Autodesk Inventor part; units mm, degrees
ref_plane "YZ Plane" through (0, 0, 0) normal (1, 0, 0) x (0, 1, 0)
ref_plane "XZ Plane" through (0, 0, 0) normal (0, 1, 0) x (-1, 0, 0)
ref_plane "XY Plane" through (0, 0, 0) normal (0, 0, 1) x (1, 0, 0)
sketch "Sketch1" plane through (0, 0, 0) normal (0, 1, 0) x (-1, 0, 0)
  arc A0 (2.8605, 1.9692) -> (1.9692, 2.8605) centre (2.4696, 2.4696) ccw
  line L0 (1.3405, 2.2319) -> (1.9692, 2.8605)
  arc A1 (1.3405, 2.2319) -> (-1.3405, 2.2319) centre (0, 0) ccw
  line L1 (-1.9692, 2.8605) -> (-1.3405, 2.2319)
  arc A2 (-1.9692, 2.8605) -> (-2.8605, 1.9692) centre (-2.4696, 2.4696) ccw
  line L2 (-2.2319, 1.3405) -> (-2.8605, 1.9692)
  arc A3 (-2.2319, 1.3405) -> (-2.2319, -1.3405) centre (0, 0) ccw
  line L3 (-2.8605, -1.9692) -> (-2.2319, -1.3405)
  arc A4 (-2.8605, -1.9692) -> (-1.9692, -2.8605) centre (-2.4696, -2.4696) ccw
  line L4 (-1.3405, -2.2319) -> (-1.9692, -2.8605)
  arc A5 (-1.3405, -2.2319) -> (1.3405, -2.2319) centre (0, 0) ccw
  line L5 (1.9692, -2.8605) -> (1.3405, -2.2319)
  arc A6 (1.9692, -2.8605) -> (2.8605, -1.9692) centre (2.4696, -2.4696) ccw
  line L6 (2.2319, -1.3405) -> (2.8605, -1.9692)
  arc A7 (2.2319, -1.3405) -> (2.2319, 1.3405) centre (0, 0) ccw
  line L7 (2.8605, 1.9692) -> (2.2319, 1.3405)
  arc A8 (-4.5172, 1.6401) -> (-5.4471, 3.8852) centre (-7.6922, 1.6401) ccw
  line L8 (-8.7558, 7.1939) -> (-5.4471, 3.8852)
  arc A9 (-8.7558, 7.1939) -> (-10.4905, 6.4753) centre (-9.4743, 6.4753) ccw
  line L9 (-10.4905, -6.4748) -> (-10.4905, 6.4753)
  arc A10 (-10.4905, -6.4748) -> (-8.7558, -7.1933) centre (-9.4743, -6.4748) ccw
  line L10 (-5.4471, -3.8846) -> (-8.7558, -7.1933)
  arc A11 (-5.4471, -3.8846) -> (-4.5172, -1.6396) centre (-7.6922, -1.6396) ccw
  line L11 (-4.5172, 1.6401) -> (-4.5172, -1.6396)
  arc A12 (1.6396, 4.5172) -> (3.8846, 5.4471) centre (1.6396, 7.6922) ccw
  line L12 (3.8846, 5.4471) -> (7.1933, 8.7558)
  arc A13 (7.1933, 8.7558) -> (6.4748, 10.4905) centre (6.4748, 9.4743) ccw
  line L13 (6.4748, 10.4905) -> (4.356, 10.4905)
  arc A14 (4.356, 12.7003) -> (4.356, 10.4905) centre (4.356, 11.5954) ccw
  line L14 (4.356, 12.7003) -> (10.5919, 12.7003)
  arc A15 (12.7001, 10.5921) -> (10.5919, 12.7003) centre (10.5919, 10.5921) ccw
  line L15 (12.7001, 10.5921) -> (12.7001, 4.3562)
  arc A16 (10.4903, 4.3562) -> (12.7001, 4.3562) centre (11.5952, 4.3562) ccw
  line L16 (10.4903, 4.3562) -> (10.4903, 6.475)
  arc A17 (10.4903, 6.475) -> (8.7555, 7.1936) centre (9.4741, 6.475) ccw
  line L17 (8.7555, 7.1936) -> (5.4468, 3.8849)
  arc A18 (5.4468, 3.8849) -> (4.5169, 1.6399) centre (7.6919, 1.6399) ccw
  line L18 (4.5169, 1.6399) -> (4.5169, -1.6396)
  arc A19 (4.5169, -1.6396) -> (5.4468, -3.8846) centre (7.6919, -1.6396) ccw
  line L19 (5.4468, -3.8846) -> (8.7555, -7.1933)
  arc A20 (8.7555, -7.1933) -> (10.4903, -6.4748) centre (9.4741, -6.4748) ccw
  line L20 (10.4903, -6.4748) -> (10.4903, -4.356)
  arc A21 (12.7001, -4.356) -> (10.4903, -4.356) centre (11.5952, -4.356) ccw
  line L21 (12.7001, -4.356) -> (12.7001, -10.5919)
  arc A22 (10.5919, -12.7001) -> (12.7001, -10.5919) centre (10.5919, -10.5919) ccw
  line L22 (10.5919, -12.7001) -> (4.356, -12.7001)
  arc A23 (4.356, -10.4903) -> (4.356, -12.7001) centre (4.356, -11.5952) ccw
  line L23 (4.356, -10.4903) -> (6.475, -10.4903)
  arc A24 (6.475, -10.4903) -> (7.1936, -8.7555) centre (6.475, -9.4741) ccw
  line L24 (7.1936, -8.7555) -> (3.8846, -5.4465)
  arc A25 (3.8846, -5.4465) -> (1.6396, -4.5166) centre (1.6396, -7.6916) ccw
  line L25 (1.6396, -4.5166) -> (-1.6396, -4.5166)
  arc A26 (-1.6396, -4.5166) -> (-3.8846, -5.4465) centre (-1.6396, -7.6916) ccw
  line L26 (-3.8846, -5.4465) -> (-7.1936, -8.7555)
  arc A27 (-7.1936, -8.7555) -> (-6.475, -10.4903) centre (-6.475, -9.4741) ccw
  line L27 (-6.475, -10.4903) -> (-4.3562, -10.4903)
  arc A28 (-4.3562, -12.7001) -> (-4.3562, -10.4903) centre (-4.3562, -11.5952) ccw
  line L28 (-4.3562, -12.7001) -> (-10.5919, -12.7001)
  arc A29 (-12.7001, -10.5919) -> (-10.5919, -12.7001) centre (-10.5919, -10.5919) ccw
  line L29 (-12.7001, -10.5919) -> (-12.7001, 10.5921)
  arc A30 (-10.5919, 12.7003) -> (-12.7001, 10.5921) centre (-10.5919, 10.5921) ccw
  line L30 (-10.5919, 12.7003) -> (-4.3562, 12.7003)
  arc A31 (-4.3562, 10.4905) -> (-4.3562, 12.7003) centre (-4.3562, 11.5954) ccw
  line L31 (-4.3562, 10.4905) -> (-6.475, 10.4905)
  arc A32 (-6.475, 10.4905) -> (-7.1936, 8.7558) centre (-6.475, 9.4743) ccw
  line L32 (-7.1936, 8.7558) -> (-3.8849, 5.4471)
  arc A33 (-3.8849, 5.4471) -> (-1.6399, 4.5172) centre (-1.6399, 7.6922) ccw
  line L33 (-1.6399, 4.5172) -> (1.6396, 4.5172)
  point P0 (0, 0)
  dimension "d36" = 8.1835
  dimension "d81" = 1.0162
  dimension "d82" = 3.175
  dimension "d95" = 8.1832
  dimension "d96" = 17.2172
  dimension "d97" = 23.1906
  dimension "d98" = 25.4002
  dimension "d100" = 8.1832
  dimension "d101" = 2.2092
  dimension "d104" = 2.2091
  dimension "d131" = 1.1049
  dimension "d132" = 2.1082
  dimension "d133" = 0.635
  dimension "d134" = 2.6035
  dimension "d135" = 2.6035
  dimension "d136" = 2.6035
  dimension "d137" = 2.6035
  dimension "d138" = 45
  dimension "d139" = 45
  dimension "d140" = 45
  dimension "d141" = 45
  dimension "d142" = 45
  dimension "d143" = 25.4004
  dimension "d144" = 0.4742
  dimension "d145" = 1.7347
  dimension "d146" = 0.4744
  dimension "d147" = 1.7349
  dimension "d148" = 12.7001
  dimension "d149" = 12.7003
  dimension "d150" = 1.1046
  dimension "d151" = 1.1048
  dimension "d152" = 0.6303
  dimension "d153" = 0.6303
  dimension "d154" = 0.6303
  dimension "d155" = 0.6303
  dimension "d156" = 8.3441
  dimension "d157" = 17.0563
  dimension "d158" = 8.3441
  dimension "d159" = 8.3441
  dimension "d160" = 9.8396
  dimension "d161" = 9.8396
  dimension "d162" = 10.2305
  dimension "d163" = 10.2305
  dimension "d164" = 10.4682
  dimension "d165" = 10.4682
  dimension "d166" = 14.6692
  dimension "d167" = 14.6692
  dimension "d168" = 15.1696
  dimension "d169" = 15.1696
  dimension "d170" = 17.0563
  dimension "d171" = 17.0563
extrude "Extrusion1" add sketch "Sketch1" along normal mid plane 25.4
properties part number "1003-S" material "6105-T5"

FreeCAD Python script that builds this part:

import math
import FreeCAD as App
import Part
import Sketcher
Q = App.Units.Quantity

doc = App.newDocument("Part")
body = doc.addObject("PartDesign::Body", "Body")

# Sketch on XZ plane
sketch1 = body.newObject("Sketcher::SketchObject", "Sketch")
sketch1.AttachmentSupport = (doc.getObject("XZ_Plane"), [""])
sketch1.MapMode = "FlatFace"
sketch1.addGeometry(Part.ArcOfCircle(Part.Circle(App.Vector(-1.6, 7.7, 0), App.Vector(0, 0, 1), 3.2), math.radians(-135), math.radians(-90)), False)
sketch1.addGeometry(Part.LineSegment(App.Vector(-1.6, 4.5, 0), App.Vector(1.6, 4.5, 0)), False)
sketch1.addGeometry(Part.ArcOfCircle(Part.Circle(App.Vector(1.6, 7.7, 0), App.Vector(0, 0, 1), 3.2), math.radians(-90), math.radians(-45)), False)
sketch1.addGeometry(Part.LineSegment(App.Vector(3.9, 5.4, 0), App.Vector(7.2, 8.8, 0)), False)
sketch1.addGeometry(Part.ArcOfCircle(Part.Circle(App.Vector(6.5, 9.5, 0), App.Vector(0, 0, 1), 1), math.radians(-45), math.radians(90)), False)
sketch1.addGeometry(Part.LineSegment(App.Vector(6.5, 10.5, 0), App.Vector(4.4, 10.5, 0)), False)
sketch1.addGeometry(Part.ArcOfCircle(Part.Circle(App.Vector(4.4, 11.6, 0), App.Vector(0, 0, 1), 1.1), math.radians(90), math.radians(270)), False)
sketch1.addGeometry(Part.LineSegment(App.Vector(4.4, 12.7, 0), App.Vector(10.6, 12.7, 0)), False)
sketch1.addGeometry(Part.ArcOfCircle(Part.Circle(App.Vector(10.6, 10.6, 0), App.Vector(0, 0, 1), 2.1), math.radians(0), math.radians(90)), False)
sketch1.addGeometry(Part.LineSegment(App.Vector(12.7, 10.6, 0), App.Vector(12.7, -10.6, 0)), False)
sketch1.addGeometry(Part.ArcOfCircle(Part.Circle(App.Vector(10.6, -10.6, 0), App.Vector(0, 0, 1), 2.1), math.radians(-90), math.radians(0)), False)
sketch1.addGeometry(Part.LineSegment(App.Vector(10.6, -12.7, 0), App.Vector(4.4, -12.7, 0)), False)
sketch1.addGeometry(Part.ArcOfCircle(Part.Circle(App.Vector(4.4, -11.6, 0), App.Vector(0, 0, 1), 1.1), math.radians(90), math.radians(270)), False)
sketch1.addGeometry(Part.LineSegment(App.Vector(4.4, -10.5, 0), App.Vector(6.5, -10.5, 0)), False)
sketch1.addGeometry(Part.ArcOfCircle(Part.Circle(App.Vector(6.5, -9.5, 0), App.Vector(0, 0, 1), 1), math.radians(-90), math.radians(45)), False)
sketch1.addGeometry(Part.LineSegment(App.Vector(7.2, -8.8, 0), App.Vector(3.9, -5.4, 0)), False)
sketch1.addGeometry(Part.ArcOfCircle(Part.Circle(App.Vector(1.6, -7.7, 0), App.Vector(0, 0, 1), 3.2), math.radians(45), math.radians(90)), False)
sketch1.addGeometry(Part.LineSegment(App.Vector(1.6, -4.5, 0), App.Vector(-1.6, -4.5, 0)), False)
sketch1.addGeometry(Part.ArcOfCircle(Part.Circle(App.Vector(-1.6, -7.7, 0), App.Vector(0, 0, 1), 3.2), math.radians(90), math.radians(135)), False)
sketch1.addGeometry(Part.LineSegment(App.Vector(-3.9, -5.4, 0), App.Vector(-7.2, -8.8, 0)), False)
sketch1.addGeometry(Part.ArcOfCircle(Part.Circle(App.Vector(-6.5, -9.5, 0), App.Vector(0, 0, 1), 1), math.radians(135), math.radians(270)), False)
sketch1.addGeometry(Part.LineSegment(App.Vector(-6.5, -10.5, 0), App.Vector(-4.4, -10.5, 0)), False)
sketch1.addGeometry(Part.ArcOfCircle(Part.Circle(App.Vector(-4.4, -11.6, 0), App.Vector(0, 0, 1), 1.1), math.radians(-90), math.radians(90)), False)
sketch1.addGeometry(Part.LineSegment(App.Vector(-4.4, -12.7, 0), App.Vector(-10.6, -12.7, 0)), False)
sketch1.addGeometry(Part.ArcOfCircle(Part.Circle(App.Vector(-10.6, -10.6, 0), App.Vector(0, 0, 1), 2.1), math.radians(180), math.radians(270)), False)
sketch1.addGeometry(Part.LineSegment(App.Vector(-12.7, -10.6, 0), App.Vector(-12.7, -4.4, 0)), False)
sketch1.addGeometry(Part.ArcOfCircle(Part.Circle(App.Vector(-11.6, -4.4, 0), App.Vector(0, 0, 1), 1.1), math.radians(0), math.radians(180)), False)
sketch1.addGeometry(Part.LineSegment(App.Vector(-10.5, -4.4, 0), App.Vector(-10.5, -6.5, 0)), False)
sketch1.addGeometry(Part.ArcOfCircle(Part.Circle(App.Vector(-9.5, -6.5, 0), App.Vector(0, 0, 1), 1), math.radians(180), math.radians(315)), False)
sketch1.addGeometry(Part.LineSegment(App.Vector(-8.8, -7.2, 0), App.Vector(-5.4, -3.9, 0)), False)
sketch1.addGeometry(Part.ArcOfCircle(Part.Circle(App.Vector(-7.7, -1.6, 0), App.Vector(0, 0, 1), 3.2), math.radians(-45), math.radians(0)), False)
sketch1.addGeometry(Part.LineSegment(App.Vector(-4.5, -1.6, 0), App.Vector(-4.5, 1.6, 0)), False)
sketch1.addGeometry(Part.ArcOfCircle(Part.Circle(App.Vector(-7.7, 1.6, 0), App.Vector(0, 0, 1), 3.2), math.radians(0), math.radians(45)), False)
sketch1.addGeometry(Part.LineSegment(App.Vector(-5.4, 3.9, 0), App.Vector(-8.8, 7.2, 0)), False)
sketch1.addGeometry(Part.ArcOfCircle(Part.Circle(App.Vector(-9.5, 6.5, 0), App.Vector(0, 0, 1), 1), math.radians(45), math.radians(180)), False)
sketch1.addGeometry(Part.LineSegment(App.Vector(-10.5, 6.5, 0), App.Vector(-10.5, 4.4, 0)), False)
sketch1.addGeometry(Part.ArcOfCircle(Part.Circle(App.Vector(-11.6, 4.4, 0), App.Vector(0, 0, 1), 1.1), math.radians(180), math.radians(360)), False)
sketch1.addGeometry(Part.LineSegment(App.Vector(-12.7, 4.4, 0), App.Vector(-12.7, 10.6, 0)), False)
sketch1.addGeometry(Part.ArcOfCircle(Part.Circle(App.Vector(-10.6, 10.6, 0), App.Vector(0, 0, 1), 2.1), math.radians(90), math.radians(180)), False)
sketch1.addGeometry(Part.LineSegment(App.Vector(-10.6, 12.7, 0), App.Vector(-4.4, 12.7, 0)), False)
sketch1.addGeometry(Part.ArcOfCircle(Part.Circle(App.Vector(-4.4, 11.6, 0), App.Vector(0, 0, 1), 1.1), math.radians(-90), math.radians(90)), False)
sketch1.addGeometry(Part.LineSegment(App.Vector(-4.4, 10.5, 0), App.Vector(-6.5, 10.5, 0)), False)
sketch1.addGeometry(Part.ArcOfCircle(Part.Circle(App.Vector(-6.5, 9.5, 0), App.Vector(0, 0, 1), 1), math.radians(90), math.radians(225)), False)
sketch1.addGeometry(Part.LineSegment(App.Vector(-7.2, 8.8, 0), App.Vector(-3.9, 5.4, 0)), False)
sketch1.addGeometry(Part.ArcOfCircle(Part.Circle(App.Vector(-2.5, 2.5, 0), App.Vector(0, 0, 1), 0.6), math.radians(38), math.radians(232)), False)
sketch1.addGeometry(Part.LineSegment(App.Vector(-2.9, 2, 0), App.Vector(-2.2, 1.3, 0)), False)
sketch1.addGeometry(Part.ArcOfCircle(Part.Circle(App.Vector(0, 0, 0), App.Vector(0, 0, 1), 2.6), math.radians(149), math.radians(211)), False)
sketch1.addGeometry(Part.LineSegment(App.Vector(-2.2, -1.3, 0), App.Vector(-2.9, -2, 0)), False)
sketch1.addGeometry(Part.ArcOfCircle(Part.Circle(App.Vector(-2.5, -2.5, 0), App.Vector(0, 0, 1), 0.6), math.radians(128), math.radians(322)), False)
sketch1.addGeometry(Part.LineSegment(App.Vector(-2, -2.9, 0), App.Vector(-1.3, -2.2, 0)), False)
sketch1.addGeometry(Part.ArcOfCircle(Part.Circle(App.Vector(0, 0, 0), App.Vector(0, 0, 1), 2.6), math.radians(-121), math.radians(-59)), False)
sketch1.addGeometry(Part.LineSegment(App.Vector(1.3, -2.2, 0), App.Vector(2, -2.9, 0)), False)
sketch1.addGeometry(Part.ArcOfCircle(Part.Circle(App.Vector(2.5, -2.5, 0), App.Vector(0, 0, 1), 0.6), math.radians(-142), math.radians(52)), False)
sketch1.addGeometry(Part.LineSegment(App.Vector(2.9, -2, 0), App.Vector(2.2, -1.3, 0)), False)
sketch1.addGeometry(Part.ArcOfCircle(Part.Circle(App.Vector(0, 0, 0), App.Vector(0, 0, 1), 2.6), math.radians(-31), math.radians(31)), False)
sketch1.addGeometry(Part.LineSegment(App.Vector(2.2, 1.3, 0), App.Vector(2.9, 2, 0)), False)
sketch1.addGeometry(Part.ArcOfCircle(Part.Circle(App.Vector(2.5, 2.5, 0), App.Vector(0, 0, 1), 0.6), math.radians(-52), math.radians(142)), False)
sketch1.addGeometry(Part.LineSegment(App.Vector(2, 2.9, 0), App.Vector(1.3, 2.2, 0)), False)
sketch1.addGeometry(Part.ArcOfCircle(Part.Circle(App.Vector(0, 0, 0), App.Vector(0, 0, 1), 2.6), math.radians(59), math.radians(121)), False)
sketch1.addGeometry(Part.LineSegment(App.Vector(-1.3, 2.2, 0), App.Vector(-2, 2.9, 0)), False)
sketch1.addGeometry(Part.ArcOfCircle(Part.Circle(App.Vector(7.7, 1.6, 0), App.Vector(0, 0, 1), 3.2), math.radians(135), math.radians(180)), False)
sketch1.addGeometry(Part.LineSegment(App.Vector(4.5, 1.6, 0), App.Vector(4.5, -1.6, 0)), False)
sketch1.addGeometry(Part.ArcOfCircle(Part.Circle(App.Vector(7.7, -1.6, 0), App.Vector(0, 0, 1), 3.2), math.radians(180), math.radians(225)), False)
sketch1.addGeometry(Part.LineSegment(App.Vector(5.4, -3.9, 0), App.Vector(8.8, -7.2, 0)), False)
sketch1.addGeometry(Part.ArcOfCircle(Part.Circle(App.Vector(9.5, -6.5, 0), App.Vector(0, 0, 1), 1), math.radians(-135), math.radians(0)), False)
sketch1.addGeometry(Part.LineSegment(App.Vector(10.5, -6.5, 0), App.Vector(10.5, 6.5, 0)), False)
sketch1.addGeometry(Part.ArcOfCircle(Part.Circle(App.Vector(9.5, 6.5, 0), App.Vector(0, 0, 1), 1), math.radians(0), math.radians(135)), False)
sketch1.addGeometry(Part.LineSegment(App.Vector(8.8, 7.2, 0), App.Vector(5.4, 3.9, 0)), False)
sketch1.addConstraint(Sketcher.Constraint("Tangent", 0, 2, 1, 1))
sketch1.addConstraint(Sketcher.Constraint("Tangent", 1, 2, 2, 1))
sketch1.addConstraint(Sketcher.Constraint("Tangent", 2, 2, 3, 1))
sketch1.addConstraint(Sketcher.Constraint("Tangent", 3, 2, 4, 1))
sketch1.addConstraint(Sketcher.Constraint("Tangent", 4, 2, 5, 1))
sketch1.addConstraint(Sketcher.Constraint("Tangent", 5, 2, 6, 2))
sketch1.addConstraint(Sketcher.Constraint("Tangent", 6, 1, 7, 1))
sketch1.addConstraint(Sketcher.Constraint("Tangent", 7, 2, 8, 2))
sketch1.addConstraint(Sketcher.Constraint("Tangent", 8, 1, 9, 1))
sketch1.addConstraint(Sketcher.Constraint("Tangent", 9, 2, 10, 2))
sketch1.addConstraint(Sketcher.Constraint("Tangent", 10, 1, 11, 1))
sketch1.addConstraint(Sketcher.Constraint("Tangent", 11, 2, 12, 2))
sketch1.addConstraint(Sketcher.Constraint("Tangent", 12, 1, 13, 1))
sketch1.addConstraint(Sketcher.Constraint("Tangent", 13, 2, 14, 1))
sketch1.addConstraint(Sketcher.Constraint("Tangent", 14, 2, 15, 1))
sketch1.addConstraint(Sketcher.Constraint("Tangent", 15, 2, 16, 1))
sketch1.addConstraint(Sketcher.Constraint("Tangent", 16, 2, 17, 1))
sketch1.addConstraint(Sketcher.Constraint("Tangent", 17, 2, 18, 1))
sketch1.addConstraint(Sketcher.Constraint("Tangent", 18, 2, 19, 1))
sketch1.addConstraint(Sketcher.Constraint("Tangent", 19, 2, 20, 1))
sketch1.addConstraint(Sketcher.Constraint("Tangent", 20, 2, 21, 1))
sketch1.addConstraint(Sketcher.Constraint("Tangent", 21, 2, 22, 2))
sketch1.addConstraint(Sketcher.Constraint("Tangent", 22, 1, 23, 1))
sketch1.addConstraint(Sketcher.Constraint("Tangent", 23, 2, 24, 2))
sketch1.addConstraint(Sketcher.Constraint("Tangent", 24, 1, 25, 1))
sketch1.addConstraint(Sketcher.Constraint("Tangent", 25, 2, 26, 2))
sketch1.addConstraint(Sketcher.Constraint("Tangent", 26, 1, 27, 1))
sketch1.addConstraint(Sketcher.Constraint("Tangent", 27, 2, 28, 1))
sketch1.addConstraint(Sketcher.Constraint("Tangent", 28, 2, 29, 1))
sketch1.addConstraint(Sketcher.Constraint("Tangent", 29, 2, 30, 1))
sketch1.addConstraint(Sketcher.Constraint("Tangent", 30, 2, 31, 1))
sketch1.addConstraint(Sketcher.Constraint("Tangent", 31, 2, 32, 1))
sketch1.addConstraint(Sketcher.Constraint("Tangent", 32, 2, 33, 1))
sketch1.addConstraint(Sketcher.Constraint("Tangent", 33, 2, 34, 1))
sketch1.addConstraint(Sketcher.Constraint("Tangent", 34, 2, 35, 1))
sketch1.addConstraint(Sketcher.Constraint("Tangent", 35, 2, 36, 2))
sketch1.addConstraint(Sketcher.Constraint("Tangent", 36, 1, 37, 1))
sketch1.addConstraint(Sketcher.Constraint("Tangent", 37, 2, 38, 2))
sketch1.addConstraint(Sketcher.Constraint("Tangent", 38, 1, 39, 1))
sketch1.addConstraint(Sketcher.Constraint("Tangent", 39, 2, 40, 2))
sketch1.addConstraint(Sketcher.Constraint("Tangent", 40, 1, 41, 1))
sketch1.addConstraint(Sketcher.Constraint("Tangent", 41, 2, 42, 1))
sketch1.addConstraint(Sketcher.Constraint("Tangent", 42, 2, 43, 1))
sketch1.addConstraint(Sketcher.Constraint("Tangent", 43, 2, 0, 1))
sketch1.addConstraint(Sketcher.Constraint("Coincident", 44, 2, 45, 1))
sketch1.addConstraint(Sketcher.Constraint("Coincident", 45, 2, 46, 1))
sketch1.addConstraint(Sketcher.Constraint("Coincident", 46, 2, 47, 1))
sketch1.addConstraint(Sketcher.Constraint("Coincident", 47, 2, 48, 1))
sketch1.addConstraint(Sketcher.Constraint("Coincident", 48, 2, 49, 1))
sketch1.addConstraint(Sketcher.Constraint("Coincident", 49, 2, 50, 1))
sketch1.addConstraint(Sketcher.Constraint("Coincident", 50, 2, 51, 1))
sketch1.addConstraint(Sketcher.Constraint("Coincident", 51, 2, 52, 1))
sketch1.addConstraint(Sketcher.Constraint("Coincident", 52, 2, 53, 1))
sketch1.addConstraint(Sketcher.Constraint("Coincident", 53, 2, 54, 1))
sketch1.addConstraint(Sketcher.Constraint("Coincident", 54, 2, 55, 1))
sketch1.addConstraint(Sketcher.Constraint("Coincident", 55, 2, 56, 1))
sketch1.addConstraint(Sketcher.Constraint("Coincident", 56, 2, 57, 1))
sketch1.addConstraint(Sketcher.Constraint("Coincident", 57, 2, 58, 1))
sketch1.addConstraint(Sketcher.Constraint("Coincident", 58, 2, 59, 1))
sketch1.addConstraint(Sketcher.Constraint("Coincident", 59, 2, 44, 1))
sketch1.addConstraint(Sketcher.Constraint("Tangent", 60, 2, 61, 1))
sketch1.addConstraint(Sketcher.Constraint("Tangent", 61, 2, 62, 1))
sketch1.addConstraint(Sketcher.Constraint("Tangent", 62, 2, 63, 1))
sketch1.addConstraint(Sketcher.Constraint("Tangent", 63, 2, 64, 1))
sketch1.addConstraint(Sketcher.Constraint("Tangent", 64, 2, 65, 1))
sketch1.addConstraint(Sketcher.Constraint("Tangent", 65, 2, 66, 1))
sketch1.addConstraint(Sketcher.Constraint("Tangent", 66, 2, 67, 1))
sketch1.addConstraint(Sketcher.Constraint("Tangent", 67, 2, 60, 1))
sketch1.addConstraint(Sketcher.Constraint("Horizontal", 1))
sketch1.addConstraint(Sketcher.Constraint("Horizontal", 5))
sketch1.addConstraint(Sketcher.Constraint("Horizontal", 7))
sketch1.addConstraint(Sketcher.Constraint("Vertical", 9))
sketch1.addConstraint(Sketcher.Constraint("Horizontal", 11))
sketch1.addConstraint(Sketcher.Constraint("Horizontal", 13))
sketch1.addConstraint(Sketcher.Constraint("Horizontal", 17))
sketch1.addConstraint(Sketcher.Constraint("Horizontal", 21))
sketch1.addConstraint(Sketcher.Constraint("Horizontal", 23))
sketch1.addConstraint(Sketcher.Constraint("Vertical", 25))
sketch1.addConstraint(Sketcher.Constraint("Vertical", 27))
sketch1.addConstraint(Sketcher.Constraint("Vertical", 31))
sketch1.addConstraint(Sketcher.Constraint("Vertical", 35))
sketch1.addConstraint(Sketcher.Constraint("Vertical", 37))
sketch1.addConstraint(Sketcher.Constraint("Horizontal", 39))
sketch1.addConstraint(Sketcher.Constraint("Horizontal", 41))
sketch1.addConstraint(Sketcher.Constraint("Vertical", 61))
sketch1.addConstraint(Sketcher.Constraint("Vertical", 65))
sketch1.addConstraint(Sketcher.Constraint("Coincident", 46, 3, -1, 1))
sketch1.addConstraint(Sketcher.Constraint("Coincident", 50, 3, -1, 1))
sketch1.addConstraint(Sketcher.Constraint("Coincident", 54, 3, -1, 1))
sketch1.addConstraint(Sketcher.Constraint("Coincident", 58, 3, -1, 1))
sketch1.addConstraint(Sketcher.Constraint("Equal", 0, 2))
sketch1.addConstraint(Sketcher.Constraint("Equal", 8, 10))
sketch1.addConstraint(Sketcher.Constraint("Equal", 6, 12))
sketch1.addConstraint(Sketcher.Constraint("Equal", 4, 14))
sketch1.addConstraint(Sketcher.Constraint("Equal", 2, 16))
sketch1.addConstraint(Sketcher.Constraint("Equal", 16, 18))
sketch1.addConstraint(Sketcher.Constraint("Equal", 14, 20))
sketch1.addConstraint(Sketcher.Constraint("Equal", 12, 22))
sketch1.addConstraint(Sketcher.Constraint("Equal", 10, 24))
sketch1.addConstraint(Sketcher.Constraint("Equal", 22, 26))
sketch1.addConstraint(Sketcher.Constraint("Equal", 20, 28))
sketch1.addConstraint(Sketcher.Constraint("Equal", 18, 30))
sketch1.addConstraint(Sketcher.Constraint("Equal", 30, 32))
sketch1.addConstraint(Sketcher.Constraint("Equal", 28, 34))
sketch1.addConstraint(Sketcher.Constraint("Equal", 26, 36))
sketch1.addConstraint(Sketcher.Constraint("Equal", 24, 38))
sketch1.addConstraint(Sketcher.Constraint("Equal", 36, 40))
sketch1.addConstraint(Sketcher.Constraint("Equal", 34, 42))
sketch1.addConstraint(Sketcher.Constraint("Equal", 44, 48))
sketch1.addConstraint(Sketcher.Constraint("Equal", 46, 50))
sketch1.addConstraint(Sketcher.Constraint("Equal", 48, 52))
sketch1.addConstraint(Sketcher.Constraint("Equal", 50, 54))
sketch1.addConstraint(Sketcher.Constraint("Equal", 52, 56))
sketch1.addConstraint(Sketcher.Constraint("Equal", 54, 58))
sketch1.addConstraint(Sketcher.Constraint("Equal", 32, 60))
sketch1.addConstraint(Sketcher.Constraint("Equal", 60, 62))
sketch1.addConstraint(Sketcher.Constraint("Equal", 42, 64))
sketch1.addConstraint(Sketcher.Constraint("Equal", 64, 66))
sketch1.addConstraint(Sketcher.Constraint("Symmetric", 4, 3, 20, 3, -1, 1))
sketch1.addConstraint(Sketcher.Constraint("Symmetric", 10, 3, 38, 3, -1, 1))
sketch1.addConstraint(Sketcher.Constraint("Symmetric", 44, 3, 52, 3, -1, 1))
sketch1.addConstraint(Sketcher.Constraint("Symmetric", 48, 3, 56, 3, -1, 1))
sketch1.addConstraint(Sketcher.Constraint("Symmetric", 34, 3, 64, 3, -1, 1))
sketch1.addConstraint(Sketcher.Constraint("Symmetric", 14, 3, 20, 3, -2))
sketch1.addConstraint(Sketcher.Constraint("Symmetric", 48, 3, 52, 3, -2))
sketch1.addConstraint(Sketcher.Constraint("Symmetric", 32, 3, 60, 3, -2))
sketch1.addConstraint(Sketcher.Constraint("Symmetric", 28, 3, 64, 3, -2))
sketch1.addConstraint(Sketcher.Constraint("Symmetric", 3, 2, 42, 2, -2))
sketch1.addConstraint(Sketcher.Constraint("Perpendicular", 3, 15))
sketch1.addConstraint(Sketcher.Constraint("Perpendicular", 15, 19))
sketch1.addConstraint(Sketcher.Constraint("Parallel", 19, 29))
sketch1.addConstraint(Sketcher.Constraint("Perpendicular", 29, 33))
sketch1.addConstraint(Sketcher.Constraint("Parallel", 33, 43))
sketch1.addConstraint(Sketcher.Constraint("Parallel", 43, 45))
sketch1.addConstraint(Sketcher.Constraint("Perpendicular", 45, 47))
sketch1.addConstraint(Sketcher.Constraint("Parallel", 47, 49))
sketch1.addConstraint(Sketcher.Constraint("Perpendicular", 49, 51))
sketch1.addConstraint(Sketcher.Constraint("Parallel", 51, 53))
sketch1.addConstraint(Sketcher.Constraint("Perpendicular", 53, 55))
sketch1.addConstraint(Sketcher.Constraint("Parallel", 55, 57))
sketch1.addConstraint(Sketcher.Constraint("Perpendicular", 57, 59))
sketch1.addConstraint(Sketcher.Constraint("Parallel", 59, 63))
sketch1.addConstraint(Sketcher.Constraint("Perpendicular", 63, 67))
sketch1.addConstraint(Sketcher.Constraint("Horizontal", 49, 2, 50, 2))
sketch1.addConstraint(Sketcher.Constraint("Horizontal", 47, 2, 52, 2))
sketch1.addConstraint(Sketcher.Constraint("Horizontal", 45, 2, 54, 2))
sketch1.addConstraint(Sketcher.Constraint("Horizontal", 57, 2, 58, 2))
sketch1.addConstraint(Sketcher.Constraint("Vertical", 6, 3, 12, 3))
sketch1.addConstraint(Sketcher.Constraint("Vertical", 0, 3, 18, 3))
sketch1.addConstraint(Sketcher.Constraint("Vertical", 22, 3, 40, 3))
sketch1.addConstraint(Sketcher.Constraint("Vertical", 45, 2, 46, 2))
sketch1.addConstraint(Sketcher.Constraint("Vertical", 51, 2, 56, 2))
sketch1.addConstraint(Sketcher.Constraint("Equal", 13, 41))
sketch1.addConstraint(Sketcher.Constraint("Equal", 39, 25))
sketch1.addConstraint(Sketcher.Constraint("Equal", 41, 27))
sketch1.addConstraint(Sketcher.Constraint("Equal", 1, 31))
sketch1.addConstraint(Sketcher.Constraint("Equal", 27, 35))
sketch1.addConstraint(Sketcher.Constraint("Equal", 3, 29))
sketch1.addConstraint(Sketcher.Constraint("Equal", 47, 49))
sketch1.addConstraint(Sketcher.Constraint("Radius", 4, Q("0.04 in")))
sketch1.addConstraint(Sketcher.Constraint("Radius", 0, Q("0.125 in")))
sketch1.addConstraint(Sketcher.Constraint("Radius", 8, Q("0.083 in")))
sketch1.addConstraint(Sketcher.Constraint("Radius", 44, Q("0.025 in")))
sketch1.addConstraint(Sketcher.Constraint("DistanceY", -1, 1, 6, 1, Q("0.5 in")))
sketch1.addConstraint(Sketcher.Constraint("Radius", 6, Q("0.0435 in")))
sketch1.addConstraint(Sketcher.Constraint("Radius", 46, Q("0.1025 in")))
sketch1.addConstraint(Sketcher.Constraint("Distance", 45, Q("0.035 in")))
sketch1.addConstraint(Sketcher.Constraint("DistanceX", 7, 1, 7, 2, Q("0.2455 in")))
sketch1.addConstraint(Sketcher.Constraint("DistanceX", 17, 2, 17, 1, Q("0.1291 in")))
sketch1.addConstraint(Sketcher.Constraint("DistanceX", 5, 2, 5, 1, Q("2.1188 mm")))
sketch1.addConstraint(Sketcher.Constraint("DistanceX", 44, 3, -1, 1, Q("2.4696 mm")))
sketch1.addConstraint(Sketcher.Constraint("DistanceY", -1, 1, 44, 3, Q("2.4696 mm")))
pad1 = body.newObject("PartDesign::Pad", "Pad")
pad1.Profile = sketch1
pad1.Length = Q("1 in")
pad1.Midplane = True

doc.recompute()
